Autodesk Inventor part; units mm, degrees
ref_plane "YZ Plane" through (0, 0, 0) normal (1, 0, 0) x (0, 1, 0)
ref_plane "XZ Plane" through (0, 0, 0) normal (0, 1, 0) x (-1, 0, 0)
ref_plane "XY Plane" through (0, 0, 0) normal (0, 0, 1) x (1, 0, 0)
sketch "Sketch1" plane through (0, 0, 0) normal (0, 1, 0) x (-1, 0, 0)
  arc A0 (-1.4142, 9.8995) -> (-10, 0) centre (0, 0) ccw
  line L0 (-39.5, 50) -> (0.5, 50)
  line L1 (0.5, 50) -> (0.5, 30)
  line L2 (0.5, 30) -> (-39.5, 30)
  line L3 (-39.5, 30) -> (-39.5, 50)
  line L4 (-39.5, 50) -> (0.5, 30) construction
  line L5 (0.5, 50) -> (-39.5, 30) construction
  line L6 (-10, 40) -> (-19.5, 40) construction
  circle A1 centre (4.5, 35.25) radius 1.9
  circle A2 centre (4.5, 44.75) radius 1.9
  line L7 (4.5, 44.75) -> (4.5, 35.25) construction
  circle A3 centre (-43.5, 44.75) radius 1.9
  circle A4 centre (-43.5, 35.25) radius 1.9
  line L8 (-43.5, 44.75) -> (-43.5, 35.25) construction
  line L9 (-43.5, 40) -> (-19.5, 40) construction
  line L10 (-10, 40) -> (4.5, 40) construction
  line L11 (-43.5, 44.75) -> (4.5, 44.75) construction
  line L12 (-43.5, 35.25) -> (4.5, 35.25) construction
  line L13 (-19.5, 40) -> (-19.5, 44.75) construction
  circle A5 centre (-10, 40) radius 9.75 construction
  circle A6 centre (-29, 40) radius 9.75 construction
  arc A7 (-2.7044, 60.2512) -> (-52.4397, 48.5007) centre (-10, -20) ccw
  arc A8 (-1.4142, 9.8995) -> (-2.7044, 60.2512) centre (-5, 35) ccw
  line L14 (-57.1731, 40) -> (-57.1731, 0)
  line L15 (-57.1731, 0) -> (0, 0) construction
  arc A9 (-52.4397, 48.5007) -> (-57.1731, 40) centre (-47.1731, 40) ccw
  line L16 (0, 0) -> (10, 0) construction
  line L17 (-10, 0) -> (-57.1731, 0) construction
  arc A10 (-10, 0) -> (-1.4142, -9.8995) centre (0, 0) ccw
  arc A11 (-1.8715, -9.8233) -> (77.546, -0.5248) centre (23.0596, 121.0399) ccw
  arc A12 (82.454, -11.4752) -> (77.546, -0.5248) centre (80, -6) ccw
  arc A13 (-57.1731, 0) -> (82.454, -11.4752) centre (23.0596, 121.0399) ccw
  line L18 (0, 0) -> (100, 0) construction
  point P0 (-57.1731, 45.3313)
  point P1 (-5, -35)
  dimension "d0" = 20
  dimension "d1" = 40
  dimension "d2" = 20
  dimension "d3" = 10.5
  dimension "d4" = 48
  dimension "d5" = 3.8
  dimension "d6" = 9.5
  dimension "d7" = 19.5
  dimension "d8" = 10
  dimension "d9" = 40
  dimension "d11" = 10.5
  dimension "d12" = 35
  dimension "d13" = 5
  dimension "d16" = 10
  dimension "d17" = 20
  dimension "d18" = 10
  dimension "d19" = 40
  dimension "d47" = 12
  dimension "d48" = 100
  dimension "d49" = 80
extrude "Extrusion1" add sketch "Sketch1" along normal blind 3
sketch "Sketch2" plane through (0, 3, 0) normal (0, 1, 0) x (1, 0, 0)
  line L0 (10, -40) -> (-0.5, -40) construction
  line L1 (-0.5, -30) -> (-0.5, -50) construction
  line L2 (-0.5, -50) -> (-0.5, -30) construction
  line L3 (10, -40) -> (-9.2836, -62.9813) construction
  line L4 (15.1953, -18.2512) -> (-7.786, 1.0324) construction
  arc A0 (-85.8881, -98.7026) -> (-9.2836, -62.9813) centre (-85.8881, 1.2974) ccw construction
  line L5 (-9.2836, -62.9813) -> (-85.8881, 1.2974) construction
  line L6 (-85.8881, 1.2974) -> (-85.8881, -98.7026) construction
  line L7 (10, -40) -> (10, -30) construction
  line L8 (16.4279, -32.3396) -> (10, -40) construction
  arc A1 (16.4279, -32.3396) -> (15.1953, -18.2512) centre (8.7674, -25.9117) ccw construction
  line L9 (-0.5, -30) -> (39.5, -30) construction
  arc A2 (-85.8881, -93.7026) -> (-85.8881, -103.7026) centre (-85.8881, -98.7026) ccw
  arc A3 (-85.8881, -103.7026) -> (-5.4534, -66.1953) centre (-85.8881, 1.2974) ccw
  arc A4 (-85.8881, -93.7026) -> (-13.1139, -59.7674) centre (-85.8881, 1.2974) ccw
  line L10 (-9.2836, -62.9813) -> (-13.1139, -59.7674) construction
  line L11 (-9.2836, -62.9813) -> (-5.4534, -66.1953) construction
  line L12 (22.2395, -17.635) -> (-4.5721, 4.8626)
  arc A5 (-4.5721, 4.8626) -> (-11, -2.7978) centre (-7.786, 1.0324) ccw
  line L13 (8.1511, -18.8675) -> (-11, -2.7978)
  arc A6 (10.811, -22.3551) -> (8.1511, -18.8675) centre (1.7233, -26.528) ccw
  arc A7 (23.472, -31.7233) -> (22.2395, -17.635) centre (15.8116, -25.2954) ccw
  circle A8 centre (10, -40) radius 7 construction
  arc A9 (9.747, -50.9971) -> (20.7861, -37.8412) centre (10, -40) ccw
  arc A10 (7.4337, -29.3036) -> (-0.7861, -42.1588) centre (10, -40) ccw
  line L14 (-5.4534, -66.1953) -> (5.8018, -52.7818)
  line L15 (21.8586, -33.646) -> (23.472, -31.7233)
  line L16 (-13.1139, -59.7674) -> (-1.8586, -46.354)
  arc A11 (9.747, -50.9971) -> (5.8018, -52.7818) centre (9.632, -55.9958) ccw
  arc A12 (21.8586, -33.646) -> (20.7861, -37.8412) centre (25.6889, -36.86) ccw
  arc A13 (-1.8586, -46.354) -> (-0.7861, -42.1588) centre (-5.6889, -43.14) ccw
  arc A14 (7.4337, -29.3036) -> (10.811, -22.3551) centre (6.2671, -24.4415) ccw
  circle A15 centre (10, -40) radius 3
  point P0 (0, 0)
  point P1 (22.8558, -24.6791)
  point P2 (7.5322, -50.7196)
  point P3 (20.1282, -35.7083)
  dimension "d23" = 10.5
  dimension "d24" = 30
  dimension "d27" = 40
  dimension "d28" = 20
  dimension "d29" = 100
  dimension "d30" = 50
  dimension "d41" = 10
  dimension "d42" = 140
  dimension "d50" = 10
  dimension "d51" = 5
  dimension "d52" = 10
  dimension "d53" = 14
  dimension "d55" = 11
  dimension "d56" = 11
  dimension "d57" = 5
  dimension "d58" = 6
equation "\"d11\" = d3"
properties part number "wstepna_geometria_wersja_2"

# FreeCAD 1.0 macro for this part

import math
import FreeCAD as App
import Part
import Sketcher
from FreeCAD import Vector
Q = App.Units.Quantity

doc = App.newDocument("Part")
body = doc.addObject("PartDesign::Body", "Body")

# Sketch on XZ plane
sketch1 = doc.addObject("Sketcher::SketchObject", "Sketch")
body.addObject(sketch1)
sketch1.AttachmentSupport = (doc.XZ_Plane, [""])
sketch1.MapMode = "FlatFace"
sketch1.addGeometry(Part.ArcOfCircle(Part.Circle(Vector(0, 0, 0), Vector(0, 0, 1), 10), math.radians(0), math.radians(82)), False)
sketch1.addGeometry(Part.ArcOfCircle(Part.Circle(Vector(5, 35, 0), Vector(0, 0, 1), 25.4), math.radians(95), math.radians(262)), False)
sketch1.addGeometry(Part.ArcOfCircle(Part.Circle(Vector(10, -20, 0), Vector(0, 0, 1), 80.6), math.radians(58), math.radians(95)), False)
sketch1.addGeometry(Part.ArcOfCircle(Part.Circle(Vector(47.2, 40, 0), Vector(0, 0, 1), 10), math.radians(0), math.radians(58)), False)
sketch1.addGeometry(Part.LineSegment(Vector(57.2, 40, 0), Vector(57.2, 0, 0)), False)
sketch1.addGeometry(Part.ArcOfCircle(Part.Circle(Vector(-23.1, 121, 0), Vector(0, 0, 1), 145.2), math.radians(-114), math.radians(-56)), False)
sketch1.addGeometry(Part.ArcOfCircle(Part.Circle(Vector(-80, -6, 0), Vector(0, 0, 1), 6), math.radians(66), math.radians(246)), False)
sketch1.addGeometry(Part.ArcOfCircle(Part.Circle(Vector(-23.1, 121, 0), Vector(0, 0, 1), 133.2), math.radians(-114), math.radians(-79)), False)
sketch1.addGeometry(Part.ArcOfCircle(Part.Circle(Vector(0, 0, 0), Vector(0, 0, 1), 10), math.radians(-79), math.radians(0)), False)
sketch1.addGeometry(Part.Circle(Vector(43.5, 35.2, 0), Vector(0, 0, 1), 1.9), False)
sketch1.addGeometry(Part.Circle(Vector(-4.5, 35.2, 0), Vector(0, 0, 1), 1.9), False)
sketch1.addGeometry(Part.Circle(Vector(43.5, 44.8, 0), Vector(0, 0, 1), 1.9), False)
sketch1.addGeometry(Part.LineSegment(Vector(39.5, 30, 0), Vector(39.5, 50, 0)), False)
sketch1.addGeometry(Part.LineSegment(Vector(39.5, 50, 0), Vector(-0.5, 50, 0)), False)
sketch1.addGeometry(Part.LineSegment(Vector(-0.5, 50, 0), Vector(-0.5, 30, 0)), False)
sketch1.addGeometry(Part.LineSegment(Vector(-0.5, 30, 0), Vector(39.5, 30, 0)), False)
sketch1.addGeometry(Part.Circle(Vector(-4.5, 44.8, 0), Vector(0, 0, 1), 1.9), False)
sketch1.addConstraint(Sketcher.Constraint("Tangent", 0, 2, 1, 2))
sketch1.addConstraint(Sketcher.Constraint("Tangent", 1, 1, 2, 2))
sketch1.addConstraint(Sketcher.Constraint("Tangent", 2, 1, 3, 2))
sketch1.addConstraint(Sketcher.Constraint("Tangent", 3, 1, 4, 1))
sketch1.addConstraint(Sketcher.Constraint("Coincident", 4, 2, 5, 2))
sketch1.addConstraint(Sketcher.Constraint("Tangent", 5, 1, 6, 2))
sketch1.addConstraint(Sketcher.Constraint("Tangent", 6, 1, 7, 1))
sketch1.addConstraint(Sketcher.Constraint("Tangent", 7, 2, 8, 1))
sketch1.addConstraint(Sketcher.Constraint("Tangent", 8, 2, 0, 1))
sketch1.addConstraint(Sketcher.Constraint("Coincident", 12, 2, 13, 1))
sketch1.addConstraint(Sketcher.Constraint("Coincident", 13, 2, 14, 1))
sketch1.addConstraint(Sketcher.Constraint("Coincident", 14, 2, 15, 1))
sketch1.addConstraint(Sketcher.Constraint("Coincident", 15, 2, 12, 1))
sketch1.addConstraint(Sketcher.Constraint("Vertical", 4))
sketch1.addConstraint(Sketcher.Constraint("Vertical", 12))
sketch1.addConstraint(Sketcher.Constraint("Horizontal", 13))
sketch1.addConstraint(Sketcher.Constraint("Vertical", 14))
sketch1.addConstraint(Sketcher.Constraint("Horizontal", 15))
sketch1.addConstraint(Sketcher.Constraint("Coincident", 0, 3, -1, 1))
sketch1.addConstraint(Sketcher.Constraint("Coincident", 7, 3, 5, 3))
sketch1.addConstraint(Sketcher.Constraint("Equal", 0, 3))
sketch1.addConstraint(Sketcher.Constraint("Equal", 3, 8))
sketch1.addConstraint(Sketcher.Constraint("Equal", 9, 10))
sketch1.addConstraint(Sketcher.Constraint("Equal", 10, 11))
sketch1.addConstraint(Sketcher.Constraint("Equal", 11, 16))
sketch1.addConstraint(Sketcher.Constraint("PointOnObject", 4, 2, -1))
sketch1.addConstraint(Sketcher.Constraint("PointOnObject", 8, 2, -1))
sketch1.addConstraint(Sketcher.Constraint("Horizontal", 9, 3, 10, 3))
sketch1.addConstraint(Sketcher.Constraint("Horizontal", 11, 3, 16, 3))
sketch1.addConstraint(Sketcher.Constraint("Vertical", 9, 3, 11, 3))
sketch1.addConstraint(Sketcher.Constraint("Vertical", 10, 3, 16, 3))
sketch1.addConstraint(Sketcher.Constraint("Vertical", 2, 3, 8, 2))
sketch1.addConstraint(Sketcher.Constraint("Equal", 15, 4))
sketch1.addConstraint(Sketcher.Constraint("Radius", 0, Q("10 mm")))
sketch1.addConstraint(Sketcher.Constraint("Radius", 6, Q("6 mm")))
sketch1.addConstraint(Sketcher.Constraint("Diameter", 9, Q("3.8 mm")))
sketch1.addConstraint(Sketcher.Constraint("DistanceX", 13, 2, 13, 1, Q("40 mm")))
sketch1.addConstraint(Sketcher.Constraint("DistanceY", 12, 1, 12, 2, Q("20 mm")))
sketch1.addConstraint(Sketcher.Constraint("DistanceX", -1, 1, 1, 3, Q("5 mm")))
sketch1.addConstraint(Sketcher.Constraint("DistanceY", -1, 1, 1, 3, Q("35 mm")))
sketch1.addConstraint(Sketcher.Constraint("DistanceY", 2, 3, -1, 1, Q("20 mm")))
sketch1.addConstraint(Sketcher.Constraint("DistanceX", 6, 3, -1, 1, Q("80 mm")))
sketch1.addConstraint(Sketcher.Constraint("DistanceX", 10, 3, 9, 3, Q("48 mm")))
sketch1.addConstraint(Sketcher.Constraint("DistanceY", 3, 3, 12, 2, Q("10 mm")))
sketch1.addConstraint(Sketcher.Constraint("DistanceX", 10, 3, 1, 3, Q("9.5 mm")))
sketch1.addConstraint(Sketcher.Constraint("DistanceY", 9, 3, 11, 3, Q("9.5 mm")))
sketch1.addConstraint(Sketcher.Constraint("DistanceY", 6, 3, -1, 1, Q("6 mm")))
sketch1.addConstraint(Sketcher.Constraint("DistanceX", 12, 2, 11, 3, Q("4 mm")))
sketch1.addConstraint(Sketcher.Constraint("DistanceY", -1, 1, 9, 3, Q("35.25 mm")))
pad1 = doc.addObject("PartDesign::Pad", "Pad")
body.addObject(pad1)
pad1.Profile = sketch1
pad1.Length = 3
pad1.Reversed = True

doc.recompute()
